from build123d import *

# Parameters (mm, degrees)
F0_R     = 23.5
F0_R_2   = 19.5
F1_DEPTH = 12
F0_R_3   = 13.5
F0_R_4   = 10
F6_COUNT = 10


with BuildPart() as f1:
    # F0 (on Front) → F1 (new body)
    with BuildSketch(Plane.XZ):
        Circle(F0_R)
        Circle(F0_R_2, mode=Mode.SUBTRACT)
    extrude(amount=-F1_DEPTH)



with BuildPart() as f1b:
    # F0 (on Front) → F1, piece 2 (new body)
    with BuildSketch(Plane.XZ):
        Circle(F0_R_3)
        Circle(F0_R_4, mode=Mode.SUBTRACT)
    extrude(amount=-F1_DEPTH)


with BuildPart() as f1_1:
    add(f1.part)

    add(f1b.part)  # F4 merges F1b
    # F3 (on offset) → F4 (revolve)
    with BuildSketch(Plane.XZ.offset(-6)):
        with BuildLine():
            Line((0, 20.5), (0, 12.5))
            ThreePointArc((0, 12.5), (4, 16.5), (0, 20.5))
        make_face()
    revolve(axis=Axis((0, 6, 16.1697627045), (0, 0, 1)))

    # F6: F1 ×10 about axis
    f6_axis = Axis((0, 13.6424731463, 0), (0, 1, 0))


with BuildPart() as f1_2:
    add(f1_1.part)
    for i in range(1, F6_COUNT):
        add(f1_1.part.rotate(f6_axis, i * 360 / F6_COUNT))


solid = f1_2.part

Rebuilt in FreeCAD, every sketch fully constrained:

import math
import FreeCAD as App
import Part
import Sketcher
Q = App.Units.Quantity

doc = App.newDocument("Part")
body = doc.addObject("PartDesign::Body", "Body")

sketch1 = doc.addObject("Sketcher::SketchObject", "Sketch")
body.addObject(sketch1)
sketch1.AttachmentSupport = (doc.XZ_Plane, [""])
sketch1.MapMode = "FlatFace"
sketch1.addGeometry([
    Part.Circle(App.Vector(0, 0, 0), App.Vector(0, 0, 1), 23.5),
    Part.Circle(App.Vector(0, 0, 0), App.Vector(0, 0, 1), 19.5),
], False)
sketch1.addConstraint([
    Sketcher.Constraint("Coincident", 0, 3, -1, 1),
    Sketcher.Constraint("Coincident", 1, 3, -1, 1),
    Sketcher.Constraint("Diameter", 0, Q("47 mm")),
    Sketcher.Constraint("Diameter", 1, Q("39 mm")),
])
pad1 = doc.addObject("PartDesign::Pad", "Pad")
body.addObject(pad1)
pad1.Profile = sketch1
pad1.Length = 12
pad1.Reversed = True
body2 = doc.addObject("PartDesign::Body", "Body001")

sketch2 = doc.addObject("Sketcher::SketchObject", "Sketch001")
body2.addObject(sketch2)
sketch2.AttachmentSupport = (doc.getObject("XZ_Plane001"), [""])
sketch2.MapMode = "FlatFace"
sketch2.addGeometry([
    Part.Circle(App.Vector(0, 0, 0), App.Vector(0, 0, 1), 13.5),
    Part.Circle(App.Vector(0, 0, 0), App.Vector(0, 0, 1), 10),
], False)
sketch2.addConstraint([
    Sketcher.Constraint("Coincident", 0, 3, -1, 1),
    Sketcher.Constraint("Coincident", 1, 3, -1, 1),
    Sketcher.Constraint("Diameter", 0, Q("27 mm")),
    Sketcher.Constraint("Diameter", 1, Q("20 mm")),
])
pad2 = doc.addObject("PartDesign::Pad", "Pad001")
body2.addObject(pad2)
pad2.Profile = sketch2
pad2.Length = 12
pad2.Reversed = True
body.AllowCompound = True
doc.recompute()

boolean = doc.addObject("PartDesign::Boolean", "Boolean")
body.addObject(boolean)
boolean.Type = "Fuse"
boolean.addObjects([body2])

sketch3 = doc.addObject("Sketcher::SketchObject", "Sketch002")
body.addObject(sketch3)
sketch3.AttachmentSupport = (doc.XZ_Plane, [""])
sketch3.MapMode = "FlatFace"
sketch3.AttachmentOffset = App.Placement(App.Vector(0, 0, -6), App.Rotation())
sketch3.addGeometry([
    Part.LineSegment(App.Vector(0, 20.5, 0), App.Vector(0, 12.5, 0)),
    Part.ArcOfCircle(Part.Circle(App.Vector(0, 16.5, 0), App.Vector(0, 0, 1), 4), math.radians(-90), math.radians(90)),
], False)
sketch3.addConstraint([
    Sketcher.Constraint("Coincident", 0, 1, 1, 2),
    Sketcher.Constraint("Coincident", 1, 1, 0, 2),
    Sketcher.Constraint("Vertical", 0),
    Sketcher.Constraint("PointOnObject", 1, 3, -2),
    Sketcher.Constraint("PointOnObject", 0, 1, -2),
    Sketcher.Constraint("Radius", 1, Q("4 mm")),
    Sketcher.Constraint("DistanceY", -1, 1, 1, 3, Q("16.5 mm")),
])
revolution = doc.addObject("PartDesign::Revolution", "Revolution")
body.addObject(revolution)
revolution.Profile = sketch3
revolution.ReferenceAxis = (sketch3, ["V_Axis"])
revolution.Angle = 360
body3 = doc.addObject("PartDesign::Body", "Body002")
doc.recompute()

body3.BaseFeature = body
doc.recompute()

body4 = doc.addObject("PartDesign::Body", "Body003")
body4.BaseFeature = body
body4.Placement = App.Placement(App.Vector(0, 0, 0), App.Rotation(App.Vector(0, 1, 0), 36))
boolean2 = doc.addObject("PartDesign::Boolean", "Boolean001")
body3.addObject(boolean2)
boolean2.Type = "Fuse"
boolean2.addObjects([body4])
doc.recompute()

body5 = doc.addObject("PartDesign::Body", "Body004")
body5.BaseFeature = body
body5.Placement = App.Placement(App.Vector(0, 0, 0), App.Rotation(App.Vector(0, 1, 0), 72))
boolean3 = doc.addObject("PartDesign::Boolean", "Boolean002")
body3.addObject(boolean3)
boolean3.Type = "Fuse"
boolean3.addObjects([body5])
doc.recompute()

body6 = doc.addObject("PartDesign::Body", "Body005")
body6.BaseFeature = body
body6.Placement = App.Placement(App.Vector(0, 0, 0), App.Rotation(App.Vector(0, 1, 0), 108))
boolean4 = doc.addObject("PartDesign::Boolean", "Boolean003")
body3.addObject(boolean4)
boolean4.Type = "Fuse"
boolean4.addObjects([body6])
doc.recompute()

body7 = doc.addObject("PartDesign::Body", "Body006")
body7.BaseFeature = body
body7.Placement = App.Placement(App.Vector(0, 0, 0), App.Rotation(App.Vector(0, 1, 0), 144))
boolean5 = doc.addObject("PartDesign::Boolean", "Boolean004")
body3.addObject(boolean5)
boolean5.Type = "Fuse"
boolean5.addObjects([body7])
doc.recompute()

body8 = doc.addObject("PartDesign::Body", "Body007")
body8.BaseFeature = body
body8.Placement = App.Placement(App.Vector(0, 0, 0), App.Rotation(App.Vector(0, 1, 0), 180))
boolean6 = doc.addObject("PartDesign::Boolean", "Boolean005")
body3.addObject(boolean6)
boolean6.Type = "Fuse"
boolean6.addObjects([body8])
doc.recompute()

body9 = doc.addObject("PartDesign::Body", "Body008")
body9.BaseFeature = body
body9.Placement = App.Placement(App.Vector(0, 0, 0), App.Rotation(App.Vector(0, 1, 0), 216))
boolean7 = doc.addObject("PartDesign::Boolean", "Boolean006")
body3.addObject(boolean7)
boolean7.Type = "Fuse"
boolean7.addObjects([body9])
doc.recompute()

body10 = doc.addObject("PartDesign::Body", "Body009")
body10.BaseFeature = body
body10.Placement = App.Placement(App.Vector(0, 0, 0), App.Rotation(App.Vector(0, 1, 0), 252))
boolean8 = doc.addObject("PartDesign::Boolean", "Boolean007")
body3.addObject(boolean8)
boolean8.Type = "Fuse"
boolean8.addObjects([body10])
doc.recompute()

body11 = doc.addObject("PartDesign::Body", "Body010")
body11.BaseFeature = body
body11.Placement = App.Placement(App.Vector(0, 0, 0), App.Rotation(App.Vector(0, 1, 0), 288))
boolean9 = doc.addObject("PartDesign::Boolean", "Boolean008")
body3.addObject(boolean9)
boolean9.Type = "Fuse"
boolean9.addObjects([body11])
doc.recompute()

body.Placement = App.Placement(App.Vector(0, 0, 0), App.Rotation(App.Vector(0, 1, 0), 324))
boolean10 = doc.addObject("PartDesign::Boolean", "Boolean009")
body3.addObject(boolean10)
boolean10.Type = "Fuse"
boolean10.addObjects([body])

doc.recompute()
